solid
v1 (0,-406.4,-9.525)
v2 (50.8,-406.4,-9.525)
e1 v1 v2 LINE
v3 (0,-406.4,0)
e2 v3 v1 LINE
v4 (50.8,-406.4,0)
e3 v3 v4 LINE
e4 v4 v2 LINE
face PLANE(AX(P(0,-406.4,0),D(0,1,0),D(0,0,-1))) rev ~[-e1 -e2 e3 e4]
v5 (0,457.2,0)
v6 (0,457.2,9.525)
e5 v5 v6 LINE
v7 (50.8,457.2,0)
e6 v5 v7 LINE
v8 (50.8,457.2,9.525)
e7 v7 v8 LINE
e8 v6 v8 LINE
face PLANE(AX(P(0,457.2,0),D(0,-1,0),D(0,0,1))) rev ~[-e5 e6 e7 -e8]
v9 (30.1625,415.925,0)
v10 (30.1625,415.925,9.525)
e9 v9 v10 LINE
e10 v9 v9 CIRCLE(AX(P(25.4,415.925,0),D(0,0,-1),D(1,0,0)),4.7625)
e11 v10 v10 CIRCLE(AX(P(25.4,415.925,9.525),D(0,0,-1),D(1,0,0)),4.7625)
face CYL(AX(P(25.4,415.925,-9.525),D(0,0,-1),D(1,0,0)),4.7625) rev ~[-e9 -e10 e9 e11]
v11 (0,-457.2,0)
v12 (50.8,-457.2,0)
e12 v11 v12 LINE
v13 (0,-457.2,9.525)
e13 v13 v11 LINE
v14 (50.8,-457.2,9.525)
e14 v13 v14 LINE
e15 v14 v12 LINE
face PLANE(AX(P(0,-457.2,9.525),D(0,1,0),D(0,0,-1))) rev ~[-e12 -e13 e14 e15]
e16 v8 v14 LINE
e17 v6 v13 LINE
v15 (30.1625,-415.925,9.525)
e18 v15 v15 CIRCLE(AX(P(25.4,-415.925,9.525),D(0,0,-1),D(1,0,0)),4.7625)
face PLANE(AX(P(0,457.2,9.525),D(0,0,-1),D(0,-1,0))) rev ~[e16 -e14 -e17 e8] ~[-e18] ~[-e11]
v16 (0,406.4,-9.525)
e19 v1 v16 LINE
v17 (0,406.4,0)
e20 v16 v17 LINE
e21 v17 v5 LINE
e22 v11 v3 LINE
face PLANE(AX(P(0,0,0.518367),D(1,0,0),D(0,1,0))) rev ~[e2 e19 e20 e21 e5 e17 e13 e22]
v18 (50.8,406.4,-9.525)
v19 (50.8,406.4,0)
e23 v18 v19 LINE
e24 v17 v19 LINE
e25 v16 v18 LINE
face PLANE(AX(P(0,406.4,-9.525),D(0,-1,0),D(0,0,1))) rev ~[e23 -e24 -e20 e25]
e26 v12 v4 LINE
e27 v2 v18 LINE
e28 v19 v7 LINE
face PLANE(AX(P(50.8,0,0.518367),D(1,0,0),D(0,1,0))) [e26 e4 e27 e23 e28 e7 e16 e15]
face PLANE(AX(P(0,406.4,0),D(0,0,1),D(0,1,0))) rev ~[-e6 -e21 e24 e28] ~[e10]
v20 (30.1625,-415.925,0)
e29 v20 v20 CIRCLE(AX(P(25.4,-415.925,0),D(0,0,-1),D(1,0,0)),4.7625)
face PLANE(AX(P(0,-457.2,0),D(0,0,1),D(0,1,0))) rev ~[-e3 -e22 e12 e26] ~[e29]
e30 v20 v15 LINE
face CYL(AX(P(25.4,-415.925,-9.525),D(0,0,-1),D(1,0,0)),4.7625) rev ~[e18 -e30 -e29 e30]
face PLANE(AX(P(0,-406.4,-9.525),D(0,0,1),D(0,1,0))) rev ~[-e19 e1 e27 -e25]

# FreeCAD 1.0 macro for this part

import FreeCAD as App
import Part
import Sketcher
Q = App.Units.Quantity


def add_polygon(sketch, points):
    """Adds a closed chain of lines whose ends are joined by coincident constraints."""
    first, n = sketch.GeometryCount, len(points)
    for a, b in zip(points, points[1:] + points[:1]):
        sketch.addGeometry(Part.LineSegment(App.Vector(*a, 0), App.Vector(*b, 0)), False)
    for i in range(n):
        sketch.addConstraint(Sketcher.Constraint("Coincident", first + i, 2, first + (i + 1) % n, 1))

doc = App.newDocument("Part")
params = doc.addObject("Spreadsheet::Sheet", "Params")
for row, (alias, value) in enumerate([
    ("sketch1_width", "32 in"),
    ("sketch1_width2", "2 in"),
    ("sketch1_height", "0.375 in"),
    ("pad1_length", "2 in"),
    ("sketch2_diameter", "0.375 in"),
    ("pocket1_length", "1 in"),
], start=1):
    params.set(f"A{row}", alias)
    params.set(f"B{row}", "=" + value)
    params.setAlias(f"B{row}", alias)

body = doc.addObject("PartDesign::Body", "Body")

sketch1 = body.newObject("Sketcher::SketchObject", "Sketch")
sketch1.AttachmentSupport = (doc.getObject("YZ_Plane"), [""])
sketch1.MapMode = "FlatFace"
add_polygon(sketch1, [(-406.4, 0), (-406.4, -9.525), (406.4, -9.525), (406.4, 0), (457.2, 0), (457.2, 9.525), (-457.2, 9.525), (-457.2, 0)])
sketch1.addConstraint([
    Sketcher.Constraint("Vertical", 0),
    Sketcher.Constraint("Horizontal", 1),
    Sketcher.Constraint("Vertical", 2),
    Sketcher.Constraint("Horizontal", 3),
    Sketcher.Constraint("Vertical", 4),
    Sketcher.Constraint("Horizontal", 5),
    Sketcher.Constraint("Vertical", 6),
    Sketcher.Constraint("Horizontal", 7),
    Sketcher.Constraint("Symmetric", 3, 2, 6, 2, -1, 1),
    Sketcher.Constraint("Symmetric", 2, 2, 7, 2, -2),
    Sketcher.Constraint("Equal", 2, 4),
    Sketcher.Constraint("DistanceX", 1, 1, 1, 2, Q("32 in")),
    Sketcher.Constraint("DistanceX", 3, 1, 3, 2, Q("2 in")),
    Sketcher.Constraint("DistanceY", 0, 2, 0, 1, Q("0.375 in")),
])
sketch1.setExpression("Constraints[19]", "Params.sketch1_width")
sketch1.setExpression("Constraints[20]", "Params.sketch1_width2")
sketch1.setExpression("Constraints[21]", "Params.sketch1_height")
pad1 = body.newObject("PartDesign::Pad", "Pad")
pad1.Profile = sketch1
pad1.setExpression("Length", "Params.pad1_length")

sketch2 = body.newObject("Sketcher::SketchObject", "Sketch001")
sketch2.AttachmentSupport = (doc.getObject("XY_Plane"), [""])
sketch2.MapMode = "FlatFace"
sketch2.AttachmentOffset = App.Placement(App.Vector(0, 0, -0.375 * 25.4), App.Rotation())
sketch2.addGeometry([
    Part.Circle(App.Vector(25.4, 415.925, 0), App.Vector(0, 0, 1), 4.7625),
    Part.Circle(App.Vector(25.4, -415.925, 0), App.Vector(0, 0, 1), 4.7625),
], False)
sketch2.addConstraint([
    Sketcher.Constraint("Equal", 0, 1),
    Sketcher.Constraint("Symmetric", 0, 3, 1, 3, -1),
    Sketcher.Constraint("Diameter", 0, Q("0.375 in")),
    Sketcher.Constraint("DistanceX", -1, 1, 0, 3, Q("1 in")),
    Sketcher.Constraint("DistanceY", 1, 3, 0, 3, Q("32.75 in")),
])
sketch2.setExpression("Constraints[2]", "Params.sketch2_diameter")
pocket1 = body.newObject("PartDesign::Pocket", "Pocket")
pocket1.Profile = sketch2
pocket1.setExpression("Length", "Params.pocket1_length")
pocket1.Reversed = True

doc.recompute()
